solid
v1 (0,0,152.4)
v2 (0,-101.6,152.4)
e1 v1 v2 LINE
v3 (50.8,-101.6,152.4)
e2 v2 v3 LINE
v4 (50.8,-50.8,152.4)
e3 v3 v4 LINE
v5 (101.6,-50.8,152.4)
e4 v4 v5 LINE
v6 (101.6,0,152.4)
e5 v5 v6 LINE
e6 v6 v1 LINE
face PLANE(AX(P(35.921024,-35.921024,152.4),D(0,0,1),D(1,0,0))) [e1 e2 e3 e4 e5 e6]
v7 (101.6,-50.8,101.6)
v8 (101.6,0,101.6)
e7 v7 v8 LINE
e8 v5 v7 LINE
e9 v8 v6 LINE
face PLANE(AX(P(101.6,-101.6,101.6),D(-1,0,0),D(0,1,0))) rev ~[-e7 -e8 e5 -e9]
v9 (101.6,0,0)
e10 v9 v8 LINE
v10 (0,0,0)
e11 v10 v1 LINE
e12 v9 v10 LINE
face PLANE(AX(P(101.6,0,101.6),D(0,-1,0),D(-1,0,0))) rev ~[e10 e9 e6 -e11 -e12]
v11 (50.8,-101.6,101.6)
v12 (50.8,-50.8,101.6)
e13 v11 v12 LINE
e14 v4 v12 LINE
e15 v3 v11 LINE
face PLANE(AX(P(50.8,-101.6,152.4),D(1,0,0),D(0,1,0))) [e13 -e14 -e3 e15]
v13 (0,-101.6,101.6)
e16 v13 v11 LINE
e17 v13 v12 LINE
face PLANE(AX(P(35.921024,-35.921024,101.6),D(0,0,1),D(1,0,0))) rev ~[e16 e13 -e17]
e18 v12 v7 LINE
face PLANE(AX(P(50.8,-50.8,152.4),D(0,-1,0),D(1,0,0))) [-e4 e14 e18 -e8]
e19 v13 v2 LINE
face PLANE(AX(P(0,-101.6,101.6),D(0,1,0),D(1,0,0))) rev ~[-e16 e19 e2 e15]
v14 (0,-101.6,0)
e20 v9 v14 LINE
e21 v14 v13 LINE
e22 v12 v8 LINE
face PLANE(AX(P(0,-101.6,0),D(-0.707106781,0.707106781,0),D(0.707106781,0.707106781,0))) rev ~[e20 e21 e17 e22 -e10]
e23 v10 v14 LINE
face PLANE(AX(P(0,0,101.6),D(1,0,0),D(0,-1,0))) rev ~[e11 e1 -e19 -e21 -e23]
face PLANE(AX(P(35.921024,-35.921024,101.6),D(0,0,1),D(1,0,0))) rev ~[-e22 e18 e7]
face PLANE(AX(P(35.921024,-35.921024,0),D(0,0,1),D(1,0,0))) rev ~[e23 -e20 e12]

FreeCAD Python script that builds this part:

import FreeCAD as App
import Part
import Sketcher
Q = App.Units.Quantity

doc = App.newDocument("Part")
body = doc.addObject("PartDesign::Body", "Body")

sketch1 = body.newObject("Sketcher::SketchObject", "Sketch")
sketch1.AttachmentSupport = (doc.getObject("XY_Plane"), [""])
sketch1.MapMode = "FlatFace"
sketch1.addGeometry(Part.LineSegment(App.Vector(102, 0, 0), App.Vector(0, 0, 0)), False)
sketch1.addGeometry(Part.LineSegment(App.Vector(0, 0, 0), App.Vector(0, -102, 0)), False)
sketch1.addGeometry(Part.LineSegment(App.Vector(0, -102, 0), App.Vector(102, 0, 0)), False)
sketch1.addConstraint(Sketcher.Constraint("Coincident", 0, 2, 1, 1))
sketch1.addConstraint(Sketcher.Constraint("Coincident", 1, 2, 2, 1))
sketch1.addConstraint(Sketcher.Constraint("Coincident", 2, 2, 0, 1))
sketch1.addConstraint(Sketcher.Constraint("Horizontal", 0))
sketch1.addConstraint(Sketcher.Constraint("Vertical", 1))
sketch1.addConstraint(Sketcher.Constraint("Coincident", 0, 2, -1, 1))
sketch1.addConstraint(Sketcher.Constraint("Equal", 0, 1))
sketch1.addConstraint(Sketcher.Constraint("DistanceX", 0, 2, 0, 1, Q("4 in")))
pad1 = body.newObject("PartDesign::Pad", "Pad")
pad1.Profile = sketch1
pad1.Length = Q("4 in")

sketch2 = body.newObject("Sketcher::SketchObject", "Sketch001")
sketch2.AttachmentSupport = (doc.getObject("XY_Plane"), [""])
sketch2.MapMode = "FlatFace"
sketch2.AttachmentOffset = App.Placement(App.Vector(0, 0, 4 * 25.4), App.Rotation())
sketch2.addGeometry(Part.LineSegment(App.Vector(102, 0, 0), App.Vector(0, 0, 0)), False)
sketch2.addGeometry(Part.LineSegment(App.Vector(0, 0, 0), App.Vector(0, -102, 0)), False)
sketch2.addGeometry(Part.LineSegment(App.Vector(0, -102, 0), App.Vector(102, -102, 0)), False)
sketch2.addGeometry(Part.LineSegment(App.Vector(102, -102, 0), App.Vector(102, 0, 0)), False)
sketch2.addConstraint(Sketcher.Constraint("Coincident", 0, 2, 1, 1))
sketch2.addConstraint(Sketcher.Constraint("Coincident", 1, 2, 2, 1))
sketch2.addConstraint(Sketcher.Constraint("Coincident", 2, 2, 3, 1))
sketch2.addConstraint(Sketcher.Constraint("Coincident", 3, 2, 0, 1))
sketch2.addConstraint(Sketcher.Constraint("Horizontal", 0))
sketch2.addConstraint(Sketcher.Constraint("Vertical", 1))
sketch2.addConstraint(Sketcher.Constraint("Horizontal", 2))
sketch2.addConstraint(Sketcher.Constraint("Vertical", 3))
sketch2.addConstraint(Sketcher.Constraint("Coincident", 0, 2, -1, 1))
sketch2.addConstraint(Sketcher.Constraint("Equal", 2, 1))
sketch2.addConstraint(Sketcher.Constraint("DistanceX", 0, 2, 0, 1, Q("4 in")))
pad2 = body.newObject("PartDesign::Pad", "Pad001")
pad2.Profile = sketch2
pad2.Length = Q("2 in")

sketch3 = body.newObject("Sketcher::SketchObject", "Sketch002")
sketch3.AttachmentSupport = (doc.getObject("XY_Plane"), [""])
sketch3.MapMode = "FlatFace"
sketch3.AttachmentOffset = App.Placement(App.Vector(0, 0, 6 * 25.4), App.Rotation())
sketch3.addGeometry(Part.LineSegment(App.Vector(51, -51, 0), App.Vector(51, -102, 0)), False)
sketch3.addGeometry(Part.LineSegment(App.Vector(51, -102, 0), App.Vector(102, -102, 0)), False)
sketch3.addGeometry(Part.LineSegment(App.Vector(102, -102, 0), App.Vector(102, -51, 0)), False)
sketch3.addGeometry(Part.LineSegment(App.Vector(102, -51, 0), App.Vector(51, -51, 0)), False)
sketch3.addConstraint(Sketcher.Constraint("Coincident", 0, 2, 1, 1))
sketch3.addConstraint(Sketcher.Constraint("Coincident", 1, 2, 2, 1))
sketch3.addConstraint(Sketcher.Constraint("Coincident", 2, 2, 3, 1))
sketch3.addConstraint(Sketcher.Constraint("Coincident", 3, 2, 0, 1))
sketch3.addConstraint(Sketcher.Constraint("Vertical", 0))
sketch3.addConstraint(Sketcher.Constraint("Horizontal", 1))
sketch3.addConstraint(Sketcher.Constraint("Vertical", 2))
sketch3.addConstraint(Sketcher.Constraint("Horizontal", 3))
sketch3.addConstraint(Sketcher.Constraint("Equal", 3, 0))
sketch3.addConstraint(Sketcher.Constraint("DistanceX", 1, 1, 1, 2, Q("2 in")))
sketch3.addConstraint(Sketcher.Constraint("DistanceX", -1, 1, 0, 2, Q("2 in")))
sketch3.addConstraint(Sketcher.Constraint("DistanceY", 0, 2, -1, 1, Q("4 in")))
pocket1 = body.newObject("PartDesign::Pocket", "Pocket")
pocket1.Profile = sketch3
pocket1.Type = "ThroughAll"

doc.recompute()
